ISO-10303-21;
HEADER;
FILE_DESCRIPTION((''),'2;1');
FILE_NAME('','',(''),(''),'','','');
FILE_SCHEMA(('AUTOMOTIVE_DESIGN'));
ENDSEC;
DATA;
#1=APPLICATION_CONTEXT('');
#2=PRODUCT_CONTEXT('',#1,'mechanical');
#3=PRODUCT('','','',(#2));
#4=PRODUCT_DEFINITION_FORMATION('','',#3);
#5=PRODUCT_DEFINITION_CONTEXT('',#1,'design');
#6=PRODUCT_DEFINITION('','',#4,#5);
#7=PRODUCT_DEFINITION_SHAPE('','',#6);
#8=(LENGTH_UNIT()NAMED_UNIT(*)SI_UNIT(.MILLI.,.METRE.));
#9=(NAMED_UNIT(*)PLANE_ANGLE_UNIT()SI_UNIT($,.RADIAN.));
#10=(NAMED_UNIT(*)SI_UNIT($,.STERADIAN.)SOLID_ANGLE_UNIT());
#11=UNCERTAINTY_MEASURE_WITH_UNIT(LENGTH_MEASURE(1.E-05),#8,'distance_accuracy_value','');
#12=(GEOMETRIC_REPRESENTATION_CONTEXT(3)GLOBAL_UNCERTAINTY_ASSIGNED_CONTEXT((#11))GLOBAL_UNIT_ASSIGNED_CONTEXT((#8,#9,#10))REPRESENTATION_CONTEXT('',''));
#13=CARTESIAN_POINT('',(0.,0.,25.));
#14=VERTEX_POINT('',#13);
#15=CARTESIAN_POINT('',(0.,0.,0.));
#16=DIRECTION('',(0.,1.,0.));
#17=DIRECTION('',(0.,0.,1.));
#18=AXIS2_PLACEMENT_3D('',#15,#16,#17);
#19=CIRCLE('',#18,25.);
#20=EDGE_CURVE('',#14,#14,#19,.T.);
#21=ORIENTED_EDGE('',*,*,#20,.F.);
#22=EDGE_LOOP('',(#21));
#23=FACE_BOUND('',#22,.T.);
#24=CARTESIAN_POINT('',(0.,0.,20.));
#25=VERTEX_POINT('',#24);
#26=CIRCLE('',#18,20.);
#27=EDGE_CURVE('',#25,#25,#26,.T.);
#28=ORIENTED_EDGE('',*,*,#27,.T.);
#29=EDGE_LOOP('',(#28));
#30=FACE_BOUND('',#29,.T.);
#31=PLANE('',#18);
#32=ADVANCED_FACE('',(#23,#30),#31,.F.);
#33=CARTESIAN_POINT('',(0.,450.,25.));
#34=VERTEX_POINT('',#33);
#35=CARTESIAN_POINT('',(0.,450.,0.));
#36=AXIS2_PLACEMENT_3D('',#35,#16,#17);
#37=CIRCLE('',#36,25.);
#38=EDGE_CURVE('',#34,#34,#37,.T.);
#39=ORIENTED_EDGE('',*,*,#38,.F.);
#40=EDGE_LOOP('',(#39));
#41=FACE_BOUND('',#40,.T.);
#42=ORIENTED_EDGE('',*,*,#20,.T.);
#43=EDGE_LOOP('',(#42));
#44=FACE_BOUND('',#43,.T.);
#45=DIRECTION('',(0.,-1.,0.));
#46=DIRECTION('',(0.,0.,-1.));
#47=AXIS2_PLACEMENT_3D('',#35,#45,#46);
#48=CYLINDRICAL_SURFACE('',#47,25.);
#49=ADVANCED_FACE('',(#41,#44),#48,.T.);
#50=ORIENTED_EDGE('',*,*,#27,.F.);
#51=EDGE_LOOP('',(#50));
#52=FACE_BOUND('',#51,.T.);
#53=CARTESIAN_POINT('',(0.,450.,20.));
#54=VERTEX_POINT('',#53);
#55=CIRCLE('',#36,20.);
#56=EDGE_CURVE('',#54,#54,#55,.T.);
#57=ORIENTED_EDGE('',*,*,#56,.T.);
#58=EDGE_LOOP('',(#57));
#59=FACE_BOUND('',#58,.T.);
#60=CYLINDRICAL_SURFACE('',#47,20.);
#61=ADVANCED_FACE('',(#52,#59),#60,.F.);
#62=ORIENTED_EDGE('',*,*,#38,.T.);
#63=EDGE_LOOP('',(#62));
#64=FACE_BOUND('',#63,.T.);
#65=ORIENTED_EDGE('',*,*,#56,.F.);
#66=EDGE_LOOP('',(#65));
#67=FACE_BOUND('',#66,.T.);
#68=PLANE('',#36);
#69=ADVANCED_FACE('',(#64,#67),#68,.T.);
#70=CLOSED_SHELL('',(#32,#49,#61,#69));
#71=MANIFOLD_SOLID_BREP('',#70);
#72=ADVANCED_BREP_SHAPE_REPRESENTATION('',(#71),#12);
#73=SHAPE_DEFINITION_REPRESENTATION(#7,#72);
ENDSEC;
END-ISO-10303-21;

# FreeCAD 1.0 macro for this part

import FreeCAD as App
import Part
import Sketcher
from FreeCAD import Vector
Q = App.Units.Quantity

doc = App.newDocument("Part")
params = doc.addObject("Spreadsheet::Sheet", "Params")
for row, (alias, value) in enumerate([
    ("sketch1_diameter", "50 mm"),
    ("sketch1_diameter2", "40 mm"),
    ("pad1_length", "450 mm"),
], start=1):
    params.set(f"A{row}", alias)
    params.set(f"B{row}", "=" + value)
    params.setAlias(f"B{row}", alias)

body = doc.addObject("PartDesign::Body", "Body")

# Sketch on XZ plane
sketch1 = body.newObject("Sketcher::SketchObject", "Sketch")
sketch1.AttachmentSupport = (doc.getObject("XZ_Plane"), [""])
sketch1.MapMode = "FlatFace"
sketch1.addGeometry(Part.Circle(Vector(0, 0, 0), Vector(0, 0, 1), 25), False)
sketch1.addGeometry(Part.Circle(Vector(0, 0, 0), Vector(0, 0, 1), 20), False)
sketch1.addConstraint(Sketcher.Constraint("Coincident", 0, 3, -1, 1))
sketch1.addConstraint(Sketcher.Constraint("Coincident", 1, 3, -1, 1))
sketch1.addConstraint(Sketcher.Constraint("Diameter", 0, Q("50 mm")))
sketch1.addConstraint(Sketcher.Constraint("Diameter", 1, Q("40 mm")))
sketch1.setExpression("Constraints[2]", "Params.sketch1_diameter")
sketch1.setExpression("Constraints[3]", "Params.sketch1_diameter2")
pad1 = body.newObject("PartDesign::Pad", "Pad")
pad1.Profile = sketch1
pad1.setExpression("Length", "Params.pad1_length")
pad1.Reversed = True

doc.recompute()
